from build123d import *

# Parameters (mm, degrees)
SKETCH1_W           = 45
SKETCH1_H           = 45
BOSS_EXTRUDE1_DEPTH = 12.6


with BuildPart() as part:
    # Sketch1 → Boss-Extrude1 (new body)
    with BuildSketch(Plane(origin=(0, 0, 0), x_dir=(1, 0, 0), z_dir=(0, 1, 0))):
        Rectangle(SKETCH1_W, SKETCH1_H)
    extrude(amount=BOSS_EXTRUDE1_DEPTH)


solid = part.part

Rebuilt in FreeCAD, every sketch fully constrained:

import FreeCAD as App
import Part
import Sketcher
from FreeCAD import Vector

doc = App.newDocument("Part")
body = doc.addObject("PartDesign::Body", "Body")

sketch1 = body.newObject("Sketcher::SketchObject", "Sketch")
sketch1.AttachmentSupport = (doc.getObject("XZ_Plane"), [""])
sketch1.MapMode = "FlatFace"
sketch1.addGeometry(Part.LineSegment(Vector(-22, -22, 0), Vector(-22, 22, 0)), False)
sketch1.addGeometry(Part.LineSegment(Vector(-22, 22, 0), Vector(22, 22, 0)), False)
sketch1.addGeometry(Part.LineSegment(Vector(22, 22, 0), Vector(22, -22, 0)), False)
sketch1.addGeometry(Part.LineSegment(Vector(22, -22, 0), Vector(-22, -22, 0)), False)
sketch1.addConstraint(Sketcher.Constraint("Coincident", 0, 2, 1, 1))
sketch1.addConstraint(Sketcher.Constraint("Coincident", 1, 2, 2, 1))
sketch1.addConstraint(Sketcher.Constraint("Coincident", 2, 2, 3, 1))
sketch1.addConstraint(Sketcher.Constraint("Coincident", 3, 2, 0, 1))
sketch1.addConstraint(Sketcher.Constraint("Vertical", 0))
sketch1.addConstraint(Sketcher.Constraint("Horizontal", 1))
sketch1.addConstraint(Sketcher.Constraint("Vertical", 2))
sketch1.addConstraint(Sketcher.Constraint("Horizontal", 3))
sketch1.addConstraint(Sketcher.Constraint("Symmetric", 0, 2, 2, 2, -1, 1))
sketch1.addConstraint(Sketcher.Constraint("Equal", 3, 0))
sketch1.addConstraint(Sketcher.Constraint("DistanceX", 1, 1, 1, 2, 45.0))
pad1 = body.newObject("PartDesign::Pad", "Pad")
pad1.Profile = sketch1
pad1.Length = 12.6
pad1.Reversed = True

doc.recompute()
